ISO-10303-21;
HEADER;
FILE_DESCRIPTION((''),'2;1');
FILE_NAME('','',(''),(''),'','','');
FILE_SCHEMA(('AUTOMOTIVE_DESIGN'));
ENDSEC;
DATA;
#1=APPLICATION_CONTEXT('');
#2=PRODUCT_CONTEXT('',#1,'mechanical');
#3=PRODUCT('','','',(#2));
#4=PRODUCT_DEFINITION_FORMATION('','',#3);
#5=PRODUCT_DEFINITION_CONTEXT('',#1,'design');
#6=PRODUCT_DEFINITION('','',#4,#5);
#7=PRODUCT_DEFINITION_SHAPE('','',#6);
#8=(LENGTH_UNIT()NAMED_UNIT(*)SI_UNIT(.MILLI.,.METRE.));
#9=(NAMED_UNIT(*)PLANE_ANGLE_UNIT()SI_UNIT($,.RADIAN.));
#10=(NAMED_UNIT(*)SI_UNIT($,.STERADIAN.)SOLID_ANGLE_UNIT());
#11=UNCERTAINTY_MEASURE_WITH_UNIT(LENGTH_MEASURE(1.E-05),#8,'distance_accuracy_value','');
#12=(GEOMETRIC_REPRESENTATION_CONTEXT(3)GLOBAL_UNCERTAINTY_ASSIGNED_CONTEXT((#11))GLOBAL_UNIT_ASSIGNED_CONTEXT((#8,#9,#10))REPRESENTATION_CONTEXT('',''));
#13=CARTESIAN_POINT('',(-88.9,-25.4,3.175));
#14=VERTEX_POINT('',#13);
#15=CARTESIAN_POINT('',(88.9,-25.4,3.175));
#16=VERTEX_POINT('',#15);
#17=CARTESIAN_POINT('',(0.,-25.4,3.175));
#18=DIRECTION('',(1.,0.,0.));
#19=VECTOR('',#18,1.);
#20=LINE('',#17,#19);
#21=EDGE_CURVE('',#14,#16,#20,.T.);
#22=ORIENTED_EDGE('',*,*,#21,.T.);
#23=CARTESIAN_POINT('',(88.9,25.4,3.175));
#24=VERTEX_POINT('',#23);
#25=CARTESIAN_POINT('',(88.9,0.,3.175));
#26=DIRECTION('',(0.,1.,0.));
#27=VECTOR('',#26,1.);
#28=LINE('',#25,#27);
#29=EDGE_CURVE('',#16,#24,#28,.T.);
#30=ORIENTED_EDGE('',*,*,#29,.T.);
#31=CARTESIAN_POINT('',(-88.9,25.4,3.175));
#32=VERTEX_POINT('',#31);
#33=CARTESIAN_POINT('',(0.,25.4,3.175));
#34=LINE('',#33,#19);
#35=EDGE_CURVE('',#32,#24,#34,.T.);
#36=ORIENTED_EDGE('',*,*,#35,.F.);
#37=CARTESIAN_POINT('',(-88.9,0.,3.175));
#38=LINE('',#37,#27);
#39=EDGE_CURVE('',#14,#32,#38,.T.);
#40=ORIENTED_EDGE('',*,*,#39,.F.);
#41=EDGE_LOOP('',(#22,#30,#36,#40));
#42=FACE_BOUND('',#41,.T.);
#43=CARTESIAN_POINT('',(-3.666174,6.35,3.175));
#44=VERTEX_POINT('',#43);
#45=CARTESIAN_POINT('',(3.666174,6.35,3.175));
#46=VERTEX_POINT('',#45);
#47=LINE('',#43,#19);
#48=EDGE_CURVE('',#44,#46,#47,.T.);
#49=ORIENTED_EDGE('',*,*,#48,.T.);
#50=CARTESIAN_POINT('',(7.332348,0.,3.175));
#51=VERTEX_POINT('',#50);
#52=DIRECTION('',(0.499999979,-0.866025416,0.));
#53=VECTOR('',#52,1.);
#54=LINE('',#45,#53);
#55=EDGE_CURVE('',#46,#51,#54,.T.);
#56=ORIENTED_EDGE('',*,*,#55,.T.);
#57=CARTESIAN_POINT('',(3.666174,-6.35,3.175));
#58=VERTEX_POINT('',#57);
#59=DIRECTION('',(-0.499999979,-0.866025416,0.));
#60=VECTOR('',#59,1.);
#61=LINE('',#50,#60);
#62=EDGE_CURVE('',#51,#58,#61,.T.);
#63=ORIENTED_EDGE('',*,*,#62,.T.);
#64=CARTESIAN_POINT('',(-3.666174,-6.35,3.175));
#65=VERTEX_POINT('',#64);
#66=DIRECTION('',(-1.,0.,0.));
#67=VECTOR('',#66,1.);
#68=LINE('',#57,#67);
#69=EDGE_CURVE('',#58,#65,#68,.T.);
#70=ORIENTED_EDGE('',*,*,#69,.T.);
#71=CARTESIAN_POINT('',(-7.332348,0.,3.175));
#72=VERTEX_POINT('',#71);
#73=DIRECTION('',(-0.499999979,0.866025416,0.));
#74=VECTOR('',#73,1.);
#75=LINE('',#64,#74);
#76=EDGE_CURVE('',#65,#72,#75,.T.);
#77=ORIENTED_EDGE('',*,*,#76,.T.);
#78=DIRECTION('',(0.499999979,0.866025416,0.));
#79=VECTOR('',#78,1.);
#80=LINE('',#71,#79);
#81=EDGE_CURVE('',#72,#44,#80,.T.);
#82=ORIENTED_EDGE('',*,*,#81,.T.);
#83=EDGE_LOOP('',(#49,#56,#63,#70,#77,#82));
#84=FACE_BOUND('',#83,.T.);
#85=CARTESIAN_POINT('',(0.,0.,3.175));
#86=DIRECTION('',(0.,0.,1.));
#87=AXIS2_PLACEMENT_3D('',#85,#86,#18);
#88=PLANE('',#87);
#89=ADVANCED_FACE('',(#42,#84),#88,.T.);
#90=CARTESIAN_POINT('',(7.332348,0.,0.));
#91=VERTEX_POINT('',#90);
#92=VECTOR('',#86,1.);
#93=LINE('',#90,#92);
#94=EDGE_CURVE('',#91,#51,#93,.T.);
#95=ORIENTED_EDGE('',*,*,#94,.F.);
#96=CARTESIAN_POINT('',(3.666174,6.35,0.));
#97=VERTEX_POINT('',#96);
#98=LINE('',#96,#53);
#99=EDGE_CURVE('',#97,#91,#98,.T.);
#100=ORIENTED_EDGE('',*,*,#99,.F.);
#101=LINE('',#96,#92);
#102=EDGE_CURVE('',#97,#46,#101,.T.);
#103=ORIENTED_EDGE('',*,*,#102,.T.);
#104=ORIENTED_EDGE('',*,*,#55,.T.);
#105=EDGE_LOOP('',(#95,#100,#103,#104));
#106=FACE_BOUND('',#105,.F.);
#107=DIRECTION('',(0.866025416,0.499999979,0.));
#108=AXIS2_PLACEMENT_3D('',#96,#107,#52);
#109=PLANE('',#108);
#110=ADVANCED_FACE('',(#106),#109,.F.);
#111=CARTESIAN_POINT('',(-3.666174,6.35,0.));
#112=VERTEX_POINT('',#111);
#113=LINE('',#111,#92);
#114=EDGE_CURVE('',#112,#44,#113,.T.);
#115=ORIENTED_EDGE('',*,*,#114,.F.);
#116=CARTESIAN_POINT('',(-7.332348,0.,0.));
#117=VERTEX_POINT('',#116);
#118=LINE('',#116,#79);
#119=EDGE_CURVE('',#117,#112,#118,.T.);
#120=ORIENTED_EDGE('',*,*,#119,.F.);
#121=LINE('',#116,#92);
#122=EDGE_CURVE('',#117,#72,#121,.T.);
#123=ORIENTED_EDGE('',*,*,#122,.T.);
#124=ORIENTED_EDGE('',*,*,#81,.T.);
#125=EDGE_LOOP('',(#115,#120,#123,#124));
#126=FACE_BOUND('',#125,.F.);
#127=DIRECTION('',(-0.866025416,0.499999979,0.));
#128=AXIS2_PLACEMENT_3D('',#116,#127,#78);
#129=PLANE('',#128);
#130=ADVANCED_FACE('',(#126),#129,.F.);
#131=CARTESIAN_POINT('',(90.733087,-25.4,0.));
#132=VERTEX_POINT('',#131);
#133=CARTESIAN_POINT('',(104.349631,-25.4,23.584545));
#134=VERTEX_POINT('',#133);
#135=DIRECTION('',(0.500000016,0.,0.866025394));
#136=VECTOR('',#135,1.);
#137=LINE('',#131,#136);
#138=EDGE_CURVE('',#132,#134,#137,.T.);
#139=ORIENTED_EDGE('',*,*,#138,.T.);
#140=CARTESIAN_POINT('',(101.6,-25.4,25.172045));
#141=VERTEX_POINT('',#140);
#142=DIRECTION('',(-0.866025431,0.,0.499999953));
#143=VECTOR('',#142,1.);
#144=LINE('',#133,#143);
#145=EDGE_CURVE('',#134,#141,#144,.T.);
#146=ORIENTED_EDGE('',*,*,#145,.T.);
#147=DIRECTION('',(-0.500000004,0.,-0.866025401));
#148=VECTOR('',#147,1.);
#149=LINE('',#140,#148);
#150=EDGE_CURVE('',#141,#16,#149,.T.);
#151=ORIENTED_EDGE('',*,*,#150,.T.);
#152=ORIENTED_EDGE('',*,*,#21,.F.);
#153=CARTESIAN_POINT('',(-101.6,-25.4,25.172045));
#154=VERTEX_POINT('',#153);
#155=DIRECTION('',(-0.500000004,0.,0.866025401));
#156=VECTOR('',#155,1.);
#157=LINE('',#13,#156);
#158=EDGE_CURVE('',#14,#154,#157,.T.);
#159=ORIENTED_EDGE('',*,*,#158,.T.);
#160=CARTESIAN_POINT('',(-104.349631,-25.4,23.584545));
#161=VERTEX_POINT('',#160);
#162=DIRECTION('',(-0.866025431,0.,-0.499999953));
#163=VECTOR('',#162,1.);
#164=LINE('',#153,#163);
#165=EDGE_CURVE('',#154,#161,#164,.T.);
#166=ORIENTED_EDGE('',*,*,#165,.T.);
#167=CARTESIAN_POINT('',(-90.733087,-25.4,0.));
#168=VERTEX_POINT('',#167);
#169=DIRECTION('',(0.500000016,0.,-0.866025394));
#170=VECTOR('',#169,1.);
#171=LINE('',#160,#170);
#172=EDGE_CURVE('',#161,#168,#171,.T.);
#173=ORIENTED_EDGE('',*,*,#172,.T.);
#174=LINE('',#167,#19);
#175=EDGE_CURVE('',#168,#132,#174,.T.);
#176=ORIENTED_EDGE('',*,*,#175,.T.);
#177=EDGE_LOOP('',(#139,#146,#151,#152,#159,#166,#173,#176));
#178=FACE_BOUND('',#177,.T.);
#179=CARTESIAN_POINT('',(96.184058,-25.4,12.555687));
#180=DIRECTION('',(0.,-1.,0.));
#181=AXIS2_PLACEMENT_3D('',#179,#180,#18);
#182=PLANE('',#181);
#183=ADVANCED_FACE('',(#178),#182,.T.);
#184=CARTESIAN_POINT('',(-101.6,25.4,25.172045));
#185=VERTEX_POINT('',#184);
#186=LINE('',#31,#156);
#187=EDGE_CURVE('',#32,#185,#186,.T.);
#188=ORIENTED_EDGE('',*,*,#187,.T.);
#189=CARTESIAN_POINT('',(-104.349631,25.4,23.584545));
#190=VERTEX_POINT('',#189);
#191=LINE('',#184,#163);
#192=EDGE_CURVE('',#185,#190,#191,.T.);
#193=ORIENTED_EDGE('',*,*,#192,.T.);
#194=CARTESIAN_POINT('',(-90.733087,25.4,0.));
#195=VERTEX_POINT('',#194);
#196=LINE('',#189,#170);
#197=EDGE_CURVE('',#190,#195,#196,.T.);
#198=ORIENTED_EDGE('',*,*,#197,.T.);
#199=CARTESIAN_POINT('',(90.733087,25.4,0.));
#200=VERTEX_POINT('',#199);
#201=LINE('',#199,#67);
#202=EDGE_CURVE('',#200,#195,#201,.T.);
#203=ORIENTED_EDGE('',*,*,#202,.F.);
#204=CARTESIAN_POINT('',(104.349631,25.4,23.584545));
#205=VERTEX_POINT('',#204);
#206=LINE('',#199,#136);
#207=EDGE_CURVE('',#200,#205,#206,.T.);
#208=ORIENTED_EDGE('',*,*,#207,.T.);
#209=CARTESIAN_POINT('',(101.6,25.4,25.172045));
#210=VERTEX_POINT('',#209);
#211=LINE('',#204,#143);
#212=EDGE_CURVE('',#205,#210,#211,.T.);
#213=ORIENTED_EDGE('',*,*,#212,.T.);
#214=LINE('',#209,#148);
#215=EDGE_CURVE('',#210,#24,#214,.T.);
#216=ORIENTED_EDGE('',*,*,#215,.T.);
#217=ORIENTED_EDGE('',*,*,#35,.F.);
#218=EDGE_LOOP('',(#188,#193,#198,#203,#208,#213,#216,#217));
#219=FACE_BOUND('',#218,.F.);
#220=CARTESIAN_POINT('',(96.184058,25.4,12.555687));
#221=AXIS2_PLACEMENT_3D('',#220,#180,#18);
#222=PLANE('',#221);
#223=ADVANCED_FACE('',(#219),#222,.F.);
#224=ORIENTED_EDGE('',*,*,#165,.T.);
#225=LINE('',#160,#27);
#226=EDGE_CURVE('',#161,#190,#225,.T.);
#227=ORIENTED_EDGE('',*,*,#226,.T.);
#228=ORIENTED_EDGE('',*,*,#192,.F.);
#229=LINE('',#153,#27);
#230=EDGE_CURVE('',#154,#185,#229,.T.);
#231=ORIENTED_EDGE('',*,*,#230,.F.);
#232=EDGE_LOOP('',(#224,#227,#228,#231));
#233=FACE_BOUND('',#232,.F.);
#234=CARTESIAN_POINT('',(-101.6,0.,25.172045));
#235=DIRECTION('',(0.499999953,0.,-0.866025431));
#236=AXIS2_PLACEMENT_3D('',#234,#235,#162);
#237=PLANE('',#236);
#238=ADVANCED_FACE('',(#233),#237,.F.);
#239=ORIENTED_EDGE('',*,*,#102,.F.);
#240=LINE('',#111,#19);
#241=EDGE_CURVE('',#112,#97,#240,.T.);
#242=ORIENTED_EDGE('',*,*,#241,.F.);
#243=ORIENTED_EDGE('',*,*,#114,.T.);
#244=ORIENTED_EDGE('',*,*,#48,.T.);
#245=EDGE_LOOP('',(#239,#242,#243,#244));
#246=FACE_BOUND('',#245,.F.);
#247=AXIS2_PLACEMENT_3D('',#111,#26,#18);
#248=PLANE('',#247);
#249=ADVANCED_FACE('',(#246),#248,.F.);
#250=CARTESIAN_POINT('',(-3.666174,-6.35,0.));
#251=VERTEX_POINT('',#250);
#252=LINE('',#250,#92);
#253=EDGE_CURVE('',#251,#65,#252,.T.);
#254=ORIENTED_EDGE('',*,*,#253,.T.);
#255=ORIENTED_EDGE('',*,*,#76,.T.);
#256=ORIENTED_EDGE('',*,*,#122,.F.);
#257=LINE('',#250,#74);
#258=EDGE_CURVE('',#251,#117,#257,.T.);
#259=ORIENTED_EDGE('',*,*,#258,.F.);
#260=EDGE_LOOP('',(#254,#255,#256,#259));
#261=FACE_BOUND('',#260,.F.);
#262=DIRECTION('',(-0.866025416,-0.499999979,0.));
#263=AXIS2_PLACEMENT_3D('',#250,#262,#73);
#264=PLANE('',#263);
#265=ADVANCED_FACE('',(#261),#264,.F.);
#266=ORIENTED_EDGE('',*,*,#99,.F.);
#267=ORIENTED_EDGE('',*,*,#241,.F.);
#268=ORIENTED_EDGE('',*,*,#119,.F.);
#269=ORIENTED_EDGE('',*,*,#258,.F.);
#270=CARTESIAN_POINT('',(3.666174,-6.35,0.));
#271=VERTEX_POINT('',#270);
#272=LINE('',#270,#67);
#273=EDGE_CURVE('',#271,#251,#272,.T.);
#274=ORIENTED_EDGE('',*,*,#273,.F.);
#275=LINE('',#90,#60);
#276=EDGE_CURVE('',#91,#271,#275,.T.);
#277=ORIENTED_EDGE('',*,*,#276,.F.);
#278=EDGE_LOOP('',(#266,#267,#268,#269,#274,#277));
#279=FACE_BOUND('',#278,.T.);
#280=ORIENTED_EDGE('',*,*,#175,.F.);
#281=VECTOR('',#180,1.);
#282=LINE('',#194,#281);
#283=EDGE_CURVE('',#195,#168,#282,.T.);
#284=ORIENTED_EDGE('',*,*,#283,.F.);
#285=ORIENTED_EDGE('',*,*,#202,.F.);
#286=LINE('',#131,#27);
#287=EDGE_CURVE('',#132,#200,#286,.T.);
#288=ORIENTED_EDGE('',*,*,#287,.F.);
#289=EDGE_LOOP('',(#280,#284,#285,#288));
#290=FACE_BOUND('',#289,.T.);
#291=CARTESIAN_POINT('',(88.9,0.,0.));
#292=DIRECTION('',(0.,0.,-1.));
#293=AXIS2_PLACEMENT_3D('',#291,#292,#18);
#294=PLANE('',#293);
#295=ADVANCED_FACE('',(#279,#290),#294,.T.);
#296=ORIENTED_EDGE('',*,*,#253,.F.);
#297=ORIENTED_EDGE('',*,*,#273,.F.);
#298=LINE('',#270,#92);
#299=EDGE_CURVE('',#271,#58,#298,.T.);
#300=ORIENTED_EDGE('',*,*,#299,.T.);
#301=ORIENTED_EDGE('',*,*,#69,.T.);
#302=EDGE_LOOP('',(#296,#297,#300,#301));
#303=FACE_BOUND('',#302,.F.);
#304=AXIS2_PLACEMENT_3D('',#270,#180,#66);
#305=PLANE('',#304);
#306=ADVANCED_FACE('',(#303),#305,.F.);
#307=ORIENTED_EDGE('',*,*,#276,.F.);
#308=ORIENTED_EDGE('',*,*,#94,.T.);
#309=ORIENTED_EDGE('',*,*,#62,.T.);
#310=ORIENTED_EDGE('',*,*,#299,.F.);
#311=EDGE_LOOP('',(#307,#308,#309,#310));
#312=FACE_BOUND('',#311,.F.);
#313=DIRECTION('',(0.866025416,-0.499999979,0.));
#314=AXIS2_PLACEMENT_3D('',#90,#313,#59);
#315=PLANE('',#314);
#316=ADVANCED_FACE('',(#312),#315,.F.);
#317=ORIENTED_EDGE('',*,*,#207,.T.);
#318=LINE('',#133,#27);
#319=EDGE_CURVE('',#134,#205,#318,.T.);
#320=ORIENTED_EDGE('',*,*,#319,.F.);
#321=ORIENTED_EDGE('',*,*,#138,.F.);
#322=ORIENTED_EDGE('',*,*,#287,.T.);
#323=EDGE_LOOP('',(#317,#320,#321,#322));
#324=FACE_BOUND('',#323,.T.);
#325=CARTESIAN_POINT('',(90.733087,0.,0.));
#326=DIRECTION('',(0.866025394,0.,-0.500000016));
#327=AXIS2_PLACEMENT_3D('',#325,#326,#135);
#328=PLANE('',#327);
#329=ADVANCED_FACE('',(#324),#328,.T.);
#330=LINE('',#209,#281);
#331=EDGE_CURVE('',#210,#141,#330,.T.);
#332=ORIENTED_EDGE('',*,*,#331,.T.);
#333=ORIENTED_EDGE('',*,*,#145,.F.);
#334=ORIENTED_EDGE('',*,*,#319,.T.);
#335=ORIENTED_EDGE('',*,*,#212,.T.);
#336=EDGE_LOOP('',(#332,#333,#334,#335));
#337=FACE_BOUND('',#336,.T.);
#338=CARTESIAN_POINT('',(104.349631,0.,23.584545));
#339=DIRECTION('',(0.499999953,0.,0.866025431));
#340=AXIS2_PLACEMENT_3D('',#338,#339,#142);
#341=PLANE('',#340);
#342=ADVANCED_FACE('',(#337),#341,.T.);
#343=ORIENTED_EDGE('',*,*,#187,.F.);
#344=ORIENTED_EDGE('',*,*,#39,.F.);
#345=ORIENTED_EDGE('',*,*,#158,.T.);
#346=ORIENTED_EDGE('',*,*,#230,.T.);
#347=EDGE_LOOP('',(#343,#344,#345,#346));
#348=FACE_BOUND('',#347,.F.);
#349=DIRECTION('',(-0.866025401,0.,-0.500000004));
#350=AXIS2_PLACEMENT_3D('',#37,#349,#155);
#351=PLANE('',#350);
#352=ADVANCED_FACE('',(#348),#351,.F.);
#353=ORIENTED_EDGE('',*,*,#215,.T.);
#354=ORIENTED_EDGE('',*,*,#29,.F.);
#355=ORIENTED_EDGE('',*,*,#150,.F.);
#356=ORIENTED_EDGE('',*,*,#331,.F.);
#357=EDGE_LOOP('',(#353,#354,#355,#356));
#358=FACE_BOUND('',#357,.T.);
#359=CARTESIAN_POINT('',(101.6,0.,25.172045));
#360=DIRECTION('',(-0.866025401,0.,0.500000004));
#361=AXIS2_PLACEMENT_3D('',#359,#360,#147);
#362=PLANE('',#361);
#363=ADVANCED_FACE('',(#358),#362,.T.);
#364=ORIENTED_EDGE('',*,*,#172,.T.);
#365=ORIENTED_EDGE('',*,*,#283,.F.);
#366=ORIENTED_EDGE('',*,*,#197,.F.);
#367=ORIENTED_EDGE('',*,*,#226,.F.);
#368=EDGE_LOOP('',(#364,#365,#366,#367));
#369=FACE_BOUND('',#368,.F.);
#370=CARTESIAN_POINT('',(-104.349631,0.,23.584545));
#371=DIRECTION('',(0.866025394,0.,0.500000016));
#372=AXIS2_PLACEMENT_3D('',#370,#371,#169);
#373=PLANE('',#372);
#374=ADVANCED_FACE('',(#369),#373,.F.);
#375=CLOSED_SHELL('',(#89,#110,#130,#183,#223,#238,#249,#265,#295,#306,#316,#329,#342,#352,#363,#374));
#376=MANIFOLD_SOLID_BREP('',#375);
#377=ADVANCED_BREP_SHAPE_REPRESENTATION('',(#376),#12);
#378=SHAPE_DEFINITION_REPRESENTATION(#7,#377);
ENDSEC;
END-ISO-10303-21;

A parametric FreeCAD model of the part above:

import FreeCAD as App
import Part
import Sketcher
from FreeCAD import Vector
Q = App.Units.Quantity


def add_polygon(sketch, points):
    """Adds a closed chain of lines whose ends are joined by coincident constraints."""
    first, n = sketch.GeometryCount, len(points)
    for a, b in zip(points, points[1:] + points[:1]):
        sketch.addGeometry(Part.LineSegment(App.Vector(*a, 0), App.Vector(*b, 0)), False)
    for i in range(n):
        sketch.addConstraint(Sketcher.Constraint("Coincident", first + i, 2, first + (i + 1) % n, 1))

doc = App.newDocument("Part")
body = doc.addObject("PartDesign::Body", "Body")

# Sketch on XY plane
sketch1 = body.newObject("Sketcher::SketchObject", "Sketch")
sketch1.AttachmentSupport = (doc.getObject("XY_Plane"), [""])
sketch1.MapMode = "FlatFace"
add_polygon(sketch1, [(-89, 25), (-89, -25), (89, -25), (89, 25)])  # lines 0-3
add_polygon(sketch1, [(4, -6), (-4, -6), (-7, 0), (-4, 6), (4, 6), (7, 0)])  # lines 4-9
sketch1.addConstraint([
    Sketcher.Constraint("Vertical", 0),
    Sketcher.Constraint("Horizontal", 1),
    Sketcher.Constraint("Vertical", 2),
    Sketcher.Constraint("Horizontal", 3),
    Sketcher.Constraint("Horizontal", 4),
    Sketcher.Constraint("Horizontal", 7),
    Sketcher.Constraint("Symmetric", 0, 2, 2, 2, -1, 1),
    Sketcher.Constraint("Symmetric", 4, 2, 7, 2, -1, 1),
    Sketcher.Constraint("Symmetric", 5, 2, 8, 2, -1, 1),
    Sketcher.Constraint("PointOnObject", 5, 2, -1),
    Sketcher.Constraint("Parallel", 6, 9),
    Sketcher.Constraint("Vertical", 4, 2, 6, 2),
    Sketcher.Constraint("DistanceX", 1, 1, 1, 2, Q("7 in")),
    Sketcher.Constraint("DistanceY", 0, 2, 0, 1, Q("2 in")),
    Sketcher.Constraint("Angle", 5, Q("119.999999 deg")),
    Sketcher.Constraint("DistanceY", 4, 2, 6, 2, Q("0.5 in")),
    Sketcher.Constraint("DistanceX", 4, 2, 4, 1, 7.332348),
])
pad1 = body.newObject("PartDesign::Pad", "Pad")
pad1.Profile = sketch1
pad1.Length = Q("0.125 in")

# Sketch on XZ plane
sketch2 = body.newObject("Sketcher::SketchObject", "Sketch001")
sketch2.AttachmentSupport = (doc.getObject("XZ_Plane"), [""])
sketch2.MapMode = "FlatFace"
add_polygon(sketch2, [(-104.3, 23.6), (-90.7, 0), (-88.9, 0), (-88.9, 3.2), (-101.6, 25.2)])  # lines 0-4
add_polygon(sketch2, [(104.3, 23.6), (101.6, 25.2), (88.9, 3.2), (88.9, 0), (90.7, 0)])  # lines 5-9
sketch2.addConstraint([
    Sketcher.Constraint("Horizontal", 1),
    Sketcher.Constraint("Vertical", 2),
    Sketcher.Constraint("Vertical", 7),
    Sketcher.Constraint("Horizontal", 8),
    Sketcher.Constraint("Symmetric", 1, 2, 7, 2, -1, 1),
    Sketcher.Constraint("Symmetric", 3, 2, 5, 2, -2),
    Sketcher.Constraint("Symmetric", 0, 2, 8, 2, -2),
    Sketcher.Constraint("Symmetric", 4, 2, 9, 2, -2),
    Sketcher.Constraint("Parallel", 0, 3),
    Sketcher.Constraint("Perpendicular", 3, 4),
    Sketcher.Constraint("Perpendicular", 5, 6),
    Sketcher.Constraint("Distance", 3, Q("1 in")),
    Sketcher.Constraint("DistanceX", 3, 2, -1, 1, Q("4 in")),
    Sketcher.Constraint("Angle", 0, Q("-59.999999 deg")),
    Sketcher.Constraint("DistanceY", 2, 1, 2, 2, Q("0.125 in")),
    Sketcher.Constraint("Distance", 4, Q("0.125 in")),
])
pad2 = body.newObject("PartDesign::Pad", "Pad001")
pad2.Profile = sketch2
pad2.Length = Q("2 in")
pad2.Midplane = True

doc.recompute()
